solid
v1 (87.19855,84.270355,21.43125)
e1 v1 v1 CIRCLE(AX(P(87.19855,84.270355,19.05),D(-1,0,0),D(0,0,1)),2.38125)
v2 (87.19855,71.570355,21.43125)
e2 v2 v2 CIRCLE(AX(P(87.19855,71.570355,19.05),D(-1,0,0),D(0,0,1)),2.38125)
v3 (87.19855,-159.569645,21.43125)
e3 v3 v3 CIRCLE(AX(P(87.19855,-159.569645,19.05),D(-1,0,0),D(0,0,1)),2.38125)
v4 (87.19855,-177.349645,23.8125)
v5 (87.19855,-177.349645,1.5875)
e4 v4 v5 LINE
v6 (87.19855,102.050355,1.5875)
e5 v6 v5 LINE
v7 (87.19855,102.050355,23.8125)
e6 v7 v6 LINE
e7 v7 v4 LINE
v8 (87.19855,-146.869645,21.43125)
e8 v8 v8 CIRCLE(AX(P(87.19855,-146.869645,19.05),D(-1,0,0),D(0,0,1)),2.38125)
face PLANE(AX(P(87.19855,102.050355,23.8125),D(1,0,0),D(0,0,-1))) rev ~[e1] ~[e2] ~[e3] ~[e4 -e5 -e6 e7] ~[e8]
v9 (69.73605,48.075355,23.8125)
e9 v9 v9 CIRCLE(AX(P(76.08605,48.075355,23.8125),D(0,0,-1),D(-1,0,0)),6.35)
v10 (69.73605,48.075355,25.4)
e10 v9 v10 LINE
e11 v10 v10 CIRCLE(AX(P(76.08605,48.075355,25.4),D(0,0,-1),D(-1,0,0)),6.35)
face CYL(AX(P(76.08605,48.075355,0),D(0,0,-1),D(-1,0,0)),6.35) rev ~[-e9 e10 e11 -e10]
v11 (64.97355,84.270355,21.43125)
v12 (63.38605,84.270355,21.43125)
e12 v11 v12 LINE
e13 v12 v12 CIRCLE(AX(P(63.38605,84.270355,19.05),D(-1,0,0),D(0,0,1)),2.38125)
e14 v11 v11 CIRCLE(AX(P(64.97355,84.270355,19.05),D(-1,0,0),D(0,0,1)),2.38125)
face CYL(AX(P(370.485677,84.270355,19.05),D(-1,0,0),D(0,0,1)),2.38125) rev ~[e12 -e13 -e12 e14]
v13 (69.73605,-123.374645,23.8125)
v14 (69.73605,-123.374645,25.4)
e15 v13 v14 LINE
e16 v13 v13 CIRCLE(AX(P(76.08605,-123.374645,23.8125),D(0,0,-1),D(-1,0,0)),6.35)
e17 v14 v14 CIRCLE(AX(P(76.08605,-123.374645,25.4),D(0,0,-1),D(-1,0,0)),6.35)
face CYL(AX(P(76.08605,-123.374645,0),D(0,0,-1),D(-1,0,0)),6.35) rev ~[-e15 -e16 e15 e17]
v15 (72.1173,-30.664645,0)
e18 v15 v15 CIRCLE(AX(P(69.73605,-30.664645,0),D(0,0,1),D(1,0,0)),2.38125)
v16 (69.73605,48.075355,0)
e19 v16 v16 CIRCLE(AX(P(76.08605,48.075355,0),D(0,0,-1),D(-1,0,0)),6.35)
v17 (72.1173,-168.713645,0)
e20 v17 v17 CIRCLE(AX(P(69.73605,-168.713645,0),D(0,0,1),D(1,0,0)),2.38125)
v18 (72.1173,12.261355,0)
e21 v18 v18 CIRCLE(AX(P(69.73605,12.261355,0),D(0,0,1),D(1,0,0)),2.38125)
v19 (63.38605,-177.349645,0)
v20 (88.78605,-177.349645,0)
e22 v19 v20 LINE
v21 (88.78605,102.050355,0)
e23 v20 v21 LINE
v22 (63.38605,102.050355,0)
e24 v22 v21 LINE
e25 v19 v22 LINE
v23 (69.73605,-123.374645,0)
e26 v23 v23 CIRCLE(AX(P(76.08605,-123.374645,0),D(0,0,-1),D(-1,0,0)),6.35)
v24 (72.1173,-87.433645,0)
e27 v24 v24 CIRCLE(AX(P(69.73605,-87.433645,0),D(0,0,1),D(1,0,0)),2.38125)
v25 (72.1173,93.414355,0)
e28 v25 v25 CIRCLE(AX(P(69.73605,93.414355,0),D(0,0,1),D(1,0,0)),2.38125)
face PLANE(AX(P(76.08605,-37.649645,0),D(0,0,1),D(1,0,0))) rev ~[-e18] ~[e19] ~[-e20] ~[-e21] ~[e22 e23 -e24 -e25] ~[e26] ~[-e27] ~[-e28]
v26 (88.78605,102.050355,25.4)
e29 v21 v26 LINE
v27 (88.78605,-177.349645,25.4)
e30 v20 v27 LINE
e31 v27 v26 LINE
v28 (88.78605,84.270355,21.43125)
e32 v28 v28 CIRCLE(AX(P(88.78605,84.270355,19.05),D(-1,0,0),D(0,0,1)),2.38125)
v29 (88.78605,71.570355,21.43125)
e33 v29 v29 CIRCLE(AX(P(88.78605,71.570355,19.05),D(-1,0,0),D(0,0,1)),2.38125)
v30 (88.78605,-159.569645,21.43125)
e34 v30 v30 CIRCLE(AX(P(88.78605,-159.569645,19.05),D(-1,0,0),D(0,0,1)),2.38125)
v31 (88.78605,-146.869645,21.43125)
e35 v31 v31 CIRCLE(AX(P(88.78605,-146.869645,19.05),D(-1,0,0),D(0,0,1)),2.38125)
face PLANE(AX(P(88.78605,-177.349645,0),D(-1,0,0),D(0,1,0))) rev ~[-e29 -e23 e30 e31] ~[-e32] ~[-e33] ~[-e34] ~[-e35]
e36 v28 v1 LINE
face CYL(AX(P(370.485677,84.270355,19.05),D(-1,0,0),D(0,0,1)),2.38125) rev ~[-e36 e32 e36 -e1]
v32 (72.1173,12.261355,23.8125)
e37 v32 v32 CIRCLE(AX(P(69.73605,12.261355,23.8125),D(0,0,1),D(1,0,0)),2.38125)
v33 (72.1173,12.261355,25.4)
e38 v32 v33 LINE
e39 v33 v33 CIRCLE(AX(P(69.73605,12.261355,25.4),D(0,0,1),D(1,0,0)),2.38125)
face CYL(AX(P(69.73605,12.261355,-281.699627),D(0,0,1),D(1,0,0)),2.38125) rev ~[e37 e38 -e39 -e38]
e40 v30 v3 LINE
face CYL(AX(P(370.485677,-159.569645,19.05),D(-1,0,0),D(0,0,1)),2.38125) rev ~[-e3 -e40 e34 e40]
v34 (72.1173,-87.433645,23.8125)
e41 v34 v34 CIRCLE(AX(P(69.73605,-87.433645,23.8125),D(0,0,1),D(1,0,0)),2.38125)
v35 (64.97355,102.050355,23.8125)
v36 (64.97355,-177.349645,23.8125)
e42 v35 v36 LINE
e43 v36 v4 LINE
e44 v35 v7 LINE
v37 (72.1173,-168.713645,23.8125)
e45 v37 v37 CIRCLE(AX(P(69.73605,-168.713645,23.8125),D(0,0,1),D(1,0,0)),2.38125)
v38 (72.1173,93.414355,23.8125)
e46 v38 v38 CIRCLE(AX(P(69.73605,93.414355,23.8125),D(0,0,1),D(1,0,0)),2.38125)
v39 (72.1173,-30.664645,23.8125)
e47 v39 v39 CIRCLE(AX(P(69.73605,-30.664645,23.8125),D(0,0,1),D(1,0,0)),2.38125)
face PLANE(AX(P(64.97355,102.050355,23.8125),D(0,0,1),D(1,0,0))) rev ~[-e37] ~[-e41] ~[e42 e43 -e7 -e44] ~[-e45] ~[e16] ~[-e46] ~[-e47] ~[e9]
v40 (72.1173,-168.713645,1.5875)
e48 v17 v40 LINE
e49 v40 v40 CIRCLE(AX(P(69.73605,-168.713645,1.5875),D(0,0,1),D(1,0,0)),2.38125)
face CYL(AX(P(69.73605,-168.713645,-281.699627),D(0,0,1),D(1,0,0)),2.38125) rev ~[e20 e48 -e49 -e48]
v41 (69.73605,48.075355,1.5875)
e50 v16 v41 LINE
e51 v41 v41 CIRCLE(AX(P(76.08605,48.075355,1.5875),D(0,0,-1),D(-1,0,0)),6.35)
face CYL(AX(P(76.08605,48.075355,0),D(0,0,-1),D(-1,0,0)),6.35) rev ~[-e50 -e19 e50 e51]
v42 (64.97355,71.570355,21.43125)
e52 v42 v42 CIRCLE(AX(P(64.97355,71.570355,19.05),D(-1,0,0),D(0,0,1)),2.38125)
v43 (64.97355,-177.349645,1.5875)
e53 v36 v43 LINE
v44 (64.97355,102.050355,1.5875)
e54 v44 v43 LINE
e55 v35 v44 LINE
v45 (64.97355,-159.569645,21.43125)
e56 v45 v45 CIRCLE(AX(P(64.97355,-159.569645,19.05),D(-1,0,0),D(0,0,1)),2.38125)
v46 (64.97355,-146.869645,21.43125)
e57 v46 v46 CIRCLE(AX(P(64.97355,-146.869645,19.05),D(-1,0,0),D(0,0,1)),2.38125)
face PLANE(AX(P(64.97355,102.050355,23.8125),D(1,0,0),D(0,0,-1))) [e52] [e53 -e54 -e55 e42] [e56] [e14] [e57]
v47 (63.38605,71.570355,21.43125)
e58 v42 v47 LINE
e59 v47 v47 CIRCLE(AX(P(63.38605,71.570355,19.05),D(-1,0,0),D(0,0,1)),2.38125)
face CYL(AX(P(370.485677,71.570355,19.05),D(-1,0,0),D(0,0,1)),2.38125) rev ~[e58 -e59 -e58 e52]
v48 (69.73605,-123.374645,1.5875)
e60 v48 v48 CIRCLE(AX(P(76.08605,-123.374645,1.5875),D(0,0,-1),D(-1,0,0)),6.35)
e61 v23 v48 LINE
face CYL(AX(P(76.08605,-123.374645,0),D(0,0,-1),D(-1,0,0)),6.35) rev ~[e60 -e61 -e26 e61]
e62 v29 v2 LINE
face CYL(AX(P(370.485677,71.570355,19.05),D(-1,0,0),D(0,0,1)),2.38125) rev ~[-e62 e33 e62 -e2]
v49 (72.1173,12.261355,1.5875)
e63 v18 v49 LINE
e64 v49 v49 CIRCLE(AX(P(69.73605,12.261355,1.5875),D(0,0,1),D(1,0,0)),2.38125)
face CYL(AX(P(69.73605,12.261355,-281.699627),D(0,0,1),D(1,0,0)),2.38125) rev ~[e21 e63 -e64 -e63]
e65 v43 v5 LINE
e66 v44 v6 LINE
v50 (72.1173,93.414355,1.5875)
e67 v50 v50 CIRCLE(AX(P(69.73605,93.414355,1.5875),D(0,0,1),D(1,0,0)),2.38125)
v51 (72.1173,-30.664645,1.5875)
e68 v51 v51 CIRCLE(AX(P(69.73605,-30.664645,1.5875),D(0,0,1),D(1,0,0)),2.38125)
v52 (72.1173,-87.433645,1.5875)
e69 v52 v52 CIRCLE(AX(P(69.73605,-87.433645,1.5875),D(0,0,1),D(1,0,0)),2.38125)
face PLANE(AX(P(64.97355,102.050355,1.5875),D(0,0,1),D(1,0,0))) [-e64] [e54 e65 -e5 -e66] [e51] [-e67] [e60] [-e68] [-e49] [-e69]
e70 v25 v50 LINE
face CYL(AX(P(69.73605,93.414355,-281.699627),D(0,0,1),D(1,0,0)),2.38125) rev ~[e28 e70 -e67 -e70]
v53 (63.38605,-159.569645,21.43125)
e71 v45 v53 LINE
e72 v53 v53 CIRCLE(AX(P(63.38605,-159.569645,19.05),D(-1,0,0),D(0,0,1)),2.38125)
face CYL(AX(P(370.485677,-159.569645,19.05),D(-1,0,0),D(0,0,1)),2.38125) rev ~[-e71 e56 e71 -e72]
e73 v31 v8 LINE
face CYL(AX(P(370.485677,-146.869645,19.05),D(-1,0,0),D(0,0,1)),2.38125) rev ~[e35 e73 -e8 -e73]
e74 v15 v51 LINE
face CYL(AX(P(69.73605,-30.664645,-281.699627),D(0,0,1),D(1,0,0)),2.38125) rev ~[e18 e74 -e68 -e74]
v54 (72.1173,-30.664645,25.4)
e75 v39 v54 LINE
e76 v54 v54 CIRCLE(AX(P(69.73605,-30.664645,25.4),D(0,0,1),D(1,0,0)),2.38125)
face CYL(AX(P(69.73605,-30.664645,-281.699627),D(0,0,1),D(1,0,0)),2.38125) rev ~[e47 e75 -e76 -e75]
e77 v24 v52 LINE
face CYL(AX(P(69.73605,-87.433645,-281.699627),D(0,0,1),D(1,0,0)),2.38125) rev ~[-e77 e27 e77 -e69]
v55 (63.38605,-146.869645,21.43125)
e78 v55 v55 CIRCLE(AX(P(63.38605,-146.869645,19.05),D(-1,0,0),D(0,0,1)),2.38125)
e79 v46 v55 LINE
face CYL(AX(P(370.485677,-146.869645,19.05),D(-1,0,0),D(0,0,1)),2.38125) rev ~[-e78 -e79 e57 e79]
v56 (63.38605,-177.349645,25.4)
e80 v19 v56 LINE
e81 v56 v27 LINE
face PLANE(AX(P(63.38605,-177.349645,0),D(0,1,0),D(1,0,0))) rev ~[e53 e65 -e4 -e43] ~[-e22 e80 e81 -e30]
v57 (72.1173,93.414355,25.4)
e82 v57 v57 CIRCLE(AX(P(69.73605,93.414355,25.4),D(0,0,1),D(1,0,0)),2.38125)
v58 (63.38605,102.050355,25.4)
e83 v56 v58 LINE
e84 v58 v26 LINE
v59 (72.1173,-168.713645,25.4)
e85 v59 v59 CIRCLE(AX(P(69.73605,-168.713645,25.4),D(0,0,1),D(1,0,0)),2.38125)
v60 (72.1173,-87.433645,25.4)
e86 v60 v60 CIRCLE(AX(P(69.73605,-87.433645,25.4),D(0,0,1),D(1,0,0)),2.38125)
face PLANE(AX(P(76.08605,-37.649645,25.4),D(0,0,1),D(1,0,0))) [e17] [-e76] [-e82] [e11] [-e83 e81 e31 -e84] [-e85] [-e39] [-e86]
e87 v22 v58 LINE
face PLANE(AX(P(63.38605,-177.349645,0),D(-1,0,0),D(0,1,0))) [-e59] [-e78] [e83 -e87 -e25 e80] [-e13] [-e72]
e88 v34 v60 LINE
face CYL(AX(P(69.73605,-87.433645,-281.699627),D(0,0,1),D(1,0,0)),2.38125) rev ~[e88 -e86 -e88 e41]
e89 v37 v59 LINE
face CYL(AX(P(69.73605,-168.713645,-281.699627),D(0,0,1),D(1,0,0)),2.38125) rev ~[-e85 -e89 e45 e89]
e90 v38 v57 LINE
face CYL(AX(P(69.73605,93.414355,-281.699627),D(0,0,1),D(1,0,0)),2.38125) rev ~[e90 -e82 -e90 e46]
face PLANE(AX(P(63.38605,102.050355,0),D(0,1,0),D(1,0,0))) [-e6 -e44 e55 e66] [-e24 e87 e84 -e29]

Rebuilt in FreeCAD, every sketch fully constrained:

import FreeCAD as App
import Part
import Sketcher

V = App.Vector
Q = App.Units.Quantity


def add_polygon(sketch, points):
    """Adds a closed chain of lines whose ends are joined by coincident constraints."""
    first, n = sketch.GeometryCount, len(points)
    for a, b in zip(points, points[1:] + points[:1]):
        sketch.addGeometry(Part.LineSegment(App.Vector(*a, 0), App.Vector(*b, 0)), False)
    for i in range(n):
        sketch.addConstraint(Sketcher.Constraint("Coincident", first + i, 2, first + (i + 1) % n, 1))

doc = App.newDocument("Part")
body = doc.addObject("PartDesign::Body", "Body")

# Sketch on XY plane
sketch1 = body.newObject("Sketcher::SketchObject", "Sketch")
sketch1.AttachmentSupport = (doc.getObject("XY_Plane"), [""])
sketch1.MapMode = "FlatFace"
add_polygon(sketch1, [(63, 102), (63, -177), (89, -177), (89, 102)])  # lines 0-3
sketch1.addConstraint(Sketcher.Constraint("Vertical", 0))
sketch1.addConstraint(Sketcher.Constraint("Horizontal", 1))
sketch1.addConstraint(Sketcher.Constraint("Vertical", 2))
sketch1.addConstraint(Sketcher.Constraint("Horizontal", 3))
sketch1.addConstraint(Sketcher.Constraint("DistanceX", 1, 1, 1, 2, Q("1 in")))
sketch1.addConstraint(Sketcher.Constraint("DistanceY", 0, 2, 0, 1, Q("11 in")))
sketch1.addConstraint(Sketcher.Constraint("DistanceX", -1, 1, 0, 2, Q("63.38605 mm")))
sketch1.addConstraint(Sketcher.Constraint("DistanceY", 0, 2, -1, 1, Q("177.349645 mm")))
pad1 = body.newObject("PartDesign::Pad", "Pad")
pad1.Profile = sketch1
pad1.Length = Q("1 in")

# Sketch on XZ plane
sketch2 = body.newObject("Sketcher::SketchObject", "Sketch001")
sketch2.AttachmentSupport = (doc.getObject("XZ_Plane"), [""])
sketch2.MapMode = "FlatFace"
sketch2.AttachmentOffset = App.Placement(V(0, 0, -102.050355), App.Rotation())
add_polygon(sketch2, [(65, 2), (65, 24), (87, 24), (87, 2)])  # lines 0-3
sketch2.addConstraint(Sketcher.Constraint("Vertical", 0))
sketch2.addConstraint(Sketcher.Constraint("Horizontal", 1))
sketch2.addConstraint(Sketcher.Constraint("Vertical", 2))
sketch2.addConstraint(Sketcher.Constraint("Horizontal", 3))
sketch2.addConstraint(Sketcher.Constraint("Equal", 3, 0))
sketch2.addConstraint(Sketcher.Constraint("DistanceX", 1, 1, 1, 2, Q("0.875 in")))
sketch2.addConstraint(Sketcher.Constraint("DistanceY", -1, 1, 0, 2, Q("0.9375 in")))
sketch2.addConstraint(Sketcher.Constraint("DistanceX", -1, 1, 0, 2, Q("64.97355 mm")))
pocket1 = body.newObject("PartDesign::Pocket", "Pocket")
pocket1.Profile = sketch2
pocket1.Length = Q("11 in")
pocket1.Reversed = True

# Sketch on XY plane
sketch3 = body.newObject("Sketcher::SketchObject", "Sketch002")
sketch3.AttachmentSupport = (doc.getObject("XY_Plane"), [""])
sketch3.MapMode = "FlatFace"
sketch3.addGeometry(Part.Circle(V(76, 48, 0), V(0, 0, 1), 6), False)
sketch3.addGeometry(Part.Circle(V(76, -123, 0), V(0, 0, 1), 6), False)
sketch3.addConstraint(Sketcher.Constraint("Equal", 0, 1))
sketch3.addConstraint(Sketcher.Constraint("Vertical", 0, 3, 1, 3))
sketch3.addConstraint(Sketcher.Constraint("Diameter", 0, Q("0.5 in")))
sketch3.addConstraint(Sketcher.Constraint("DistanceY", 1, 3, 0, 3, Q("6.75 in")))
sketch3.addConstraint(Sketcher.Constraint("DistanceX", -1, 1, 0, 3, Q("76.08605 mm")))
sketch3.addConstraint(Sketcher.Constraint("DistanceY", -1, 1, 0, 3, Q("48.075355 mm")))
pocket2 = body.newObject("PartDesign::Pocket", "Pocket001")
pocket2.Profile = sketch3
pocket2.Length = Q("1 in")
pocket2.Reversed = True

# Sketch on XY plane
sketch4 = body.newObject("Sketcher::SketchObject", "Sketch003")
sketch4.AttachmentSupport = (doc.getObject("XY_Plane"), [""])
sketch4.MapMode = "FlatFace"
sketch4.addGeometry(Part.Circle(V(69.7, 93.4, 0), V(0, 0, 1), 2.4), False)
sketch4.addGeometry(Part.Circle(V(69.7, 12.3, 0), V(0, 0, 1), 2.4), False)
sketch4.addGeometry(Part.Circle(V(69.7, -30.7, 0), V(0, 0, 1), 2.4), False)
sketch4.addGeometry(Part.Circle(V(69.7, -87.4, 0), V(0, 0, 1), 2.4), False)
sketch4.addGeometry(Part.Circle(V(69.7, -168.7, 0), V(0, 0, 1), 2.4), False)
sketch4.addConstraint(Sketcher.Constraint("Equal", 0, 1))
sketch4.addConstraint(Sketcher.Constraint("Equal", 1, 2))
sketch4.addConstraint(Sketcher.Constraint("Equal", 2, 3))
sketch4.addConstraint(Sketcher.Constraint("Equal", 3, 4))
sketch4.addConstraint(Sketcher.Constraint("Vertical", 0, 3, 1, 3))
sketch4.addConstraint(Sketcher.Constraint("Vertical", 1, 3, 2, 3))
sketch4.addConstraint(Sketcher.Constraint("Vertical", 2, 3, 3, 3))
sketch4.addConstraint(Sketcher.Constraint("Vertical", 3, 3, 4, 3))
sketch4.addConstraint(Sketcher.Constraint("Diameter", 0, Q("0.1875 in")))
sketch4.addConstraint(Sketcher.Constraint("DistanceY", 4, 3, 3, 3, Q("3.2 in")))
sketch4.addConstraint(Sketcher.Constraint("DistanceY", 2, 3, 1, 3, Q("1.69 in")))
sketch4.addConstraint(Sketcher.Constraint("DistanceY", 3, 3, 0, 3, Q("7.12 in")))
sketch4.addConstraint(Sketcher.Constraint("DistanceY", 1, 3, 0, 3, Q("3.195 in")))
sketch4.addConstraint(Sketcher.Constraint("DistanceX", -1, 1, 0, 3, Q("69.73605 mm")))
sketch4.addConstraint(Sketcher.Constraint("DistanceY", -1, 1, 0, 3, Q("93.414355 mm")))
doc.recompute()
hole = body.newObject("PartDesign::Hole", "Hole")
hole.Profile = sketch4
hole.ThreadType = "None"
hole.Diameter = Q("0.1875 in")
hole.DepthType = "ThroughAll"
hole.Reversed = True

# Sketch on YZ plane
sketch5 = body.newObject("Sketcher::SketchObject", "Sketch004")
sketch5.AttachmentSupport = (doc.getObject("YZ_Plane"), [""])
sketch5.MapMode = "FlatFace"
sketch5.AttachmentOffset = App.Placement(V(0, 0, 88.78605), App.Rotation())
sketch5.addGeometry(Part.Circle(V(-159.6, 19.1, 0), V(0, 0, 1), 2.4), False)
sketch5.addGeometry(Part.Circle(V(-146.9, 19.1, 0), V(0, 0, 1), 2.4), False)
sketch5.addGeometry(Part.Circle(V(71.6, 19.1, 0), V(0, 0, 1), 2.4), False)
sketch5.addGeometry(Part.Circle(V(84.3, 19.1, 0), V(0, 0, 1), 2.4), False)
sketch5.addConstraint(Sketcher.Constraint("Equal", 0, 1))
sketch5.addConstraint(Sketcher.Constraint("Equal", 1, 2))
sketch5.addConstraint(Sketcher.Constraint("Equal", 2, 3))
sketch5.addConstraint(Sketcher.Constraint("Horizontal", 0, 3, 1, 3))
sketch5.addConstraint(Sketcher.Constraint("Horizontal", 1, 3, 2, 3))
sketch5.addConstraint(Sketcher.Constraint("Horizontal", 2, 3, 3, 3))
sketch5.addConstraint(Sketcher.Constraint("Diameter", 0, Q("0.1875 in")))
sketch5.addConstraint(Sketcher.Constraint("DistanceX", 0, 3, 1, 3, Q("0.5 in")))
sketch5.addConstraint(Sketcher.Constraint("DistanceX", 1, 3, 2, 3, Q("8.6 in")))
sketch5.addConstraint(Sketcher.Constraint("DistanceX", 2, 3, 3, 3, Q("0.5 in")))
sketch5.addConstraint(Sketcher.Constraint("DistanceY", -1, 1, 0, 3, Q("0.75 in")))
sketch5.addConstraint(Sketcher.Constraint("DistanceX", 0, 3, -1, 1, Q("159.569645 mm")))
doc.recompute()
hole2 = body.newObject("PartDesign::Hole", "Hole001")
hole2.Profile = sketch5
hole2.ThreadType = "None"
hole2.Diameter = Q("0.1875 in")
hole2.DepthType = "ThroughAll"

doc.recompute()
